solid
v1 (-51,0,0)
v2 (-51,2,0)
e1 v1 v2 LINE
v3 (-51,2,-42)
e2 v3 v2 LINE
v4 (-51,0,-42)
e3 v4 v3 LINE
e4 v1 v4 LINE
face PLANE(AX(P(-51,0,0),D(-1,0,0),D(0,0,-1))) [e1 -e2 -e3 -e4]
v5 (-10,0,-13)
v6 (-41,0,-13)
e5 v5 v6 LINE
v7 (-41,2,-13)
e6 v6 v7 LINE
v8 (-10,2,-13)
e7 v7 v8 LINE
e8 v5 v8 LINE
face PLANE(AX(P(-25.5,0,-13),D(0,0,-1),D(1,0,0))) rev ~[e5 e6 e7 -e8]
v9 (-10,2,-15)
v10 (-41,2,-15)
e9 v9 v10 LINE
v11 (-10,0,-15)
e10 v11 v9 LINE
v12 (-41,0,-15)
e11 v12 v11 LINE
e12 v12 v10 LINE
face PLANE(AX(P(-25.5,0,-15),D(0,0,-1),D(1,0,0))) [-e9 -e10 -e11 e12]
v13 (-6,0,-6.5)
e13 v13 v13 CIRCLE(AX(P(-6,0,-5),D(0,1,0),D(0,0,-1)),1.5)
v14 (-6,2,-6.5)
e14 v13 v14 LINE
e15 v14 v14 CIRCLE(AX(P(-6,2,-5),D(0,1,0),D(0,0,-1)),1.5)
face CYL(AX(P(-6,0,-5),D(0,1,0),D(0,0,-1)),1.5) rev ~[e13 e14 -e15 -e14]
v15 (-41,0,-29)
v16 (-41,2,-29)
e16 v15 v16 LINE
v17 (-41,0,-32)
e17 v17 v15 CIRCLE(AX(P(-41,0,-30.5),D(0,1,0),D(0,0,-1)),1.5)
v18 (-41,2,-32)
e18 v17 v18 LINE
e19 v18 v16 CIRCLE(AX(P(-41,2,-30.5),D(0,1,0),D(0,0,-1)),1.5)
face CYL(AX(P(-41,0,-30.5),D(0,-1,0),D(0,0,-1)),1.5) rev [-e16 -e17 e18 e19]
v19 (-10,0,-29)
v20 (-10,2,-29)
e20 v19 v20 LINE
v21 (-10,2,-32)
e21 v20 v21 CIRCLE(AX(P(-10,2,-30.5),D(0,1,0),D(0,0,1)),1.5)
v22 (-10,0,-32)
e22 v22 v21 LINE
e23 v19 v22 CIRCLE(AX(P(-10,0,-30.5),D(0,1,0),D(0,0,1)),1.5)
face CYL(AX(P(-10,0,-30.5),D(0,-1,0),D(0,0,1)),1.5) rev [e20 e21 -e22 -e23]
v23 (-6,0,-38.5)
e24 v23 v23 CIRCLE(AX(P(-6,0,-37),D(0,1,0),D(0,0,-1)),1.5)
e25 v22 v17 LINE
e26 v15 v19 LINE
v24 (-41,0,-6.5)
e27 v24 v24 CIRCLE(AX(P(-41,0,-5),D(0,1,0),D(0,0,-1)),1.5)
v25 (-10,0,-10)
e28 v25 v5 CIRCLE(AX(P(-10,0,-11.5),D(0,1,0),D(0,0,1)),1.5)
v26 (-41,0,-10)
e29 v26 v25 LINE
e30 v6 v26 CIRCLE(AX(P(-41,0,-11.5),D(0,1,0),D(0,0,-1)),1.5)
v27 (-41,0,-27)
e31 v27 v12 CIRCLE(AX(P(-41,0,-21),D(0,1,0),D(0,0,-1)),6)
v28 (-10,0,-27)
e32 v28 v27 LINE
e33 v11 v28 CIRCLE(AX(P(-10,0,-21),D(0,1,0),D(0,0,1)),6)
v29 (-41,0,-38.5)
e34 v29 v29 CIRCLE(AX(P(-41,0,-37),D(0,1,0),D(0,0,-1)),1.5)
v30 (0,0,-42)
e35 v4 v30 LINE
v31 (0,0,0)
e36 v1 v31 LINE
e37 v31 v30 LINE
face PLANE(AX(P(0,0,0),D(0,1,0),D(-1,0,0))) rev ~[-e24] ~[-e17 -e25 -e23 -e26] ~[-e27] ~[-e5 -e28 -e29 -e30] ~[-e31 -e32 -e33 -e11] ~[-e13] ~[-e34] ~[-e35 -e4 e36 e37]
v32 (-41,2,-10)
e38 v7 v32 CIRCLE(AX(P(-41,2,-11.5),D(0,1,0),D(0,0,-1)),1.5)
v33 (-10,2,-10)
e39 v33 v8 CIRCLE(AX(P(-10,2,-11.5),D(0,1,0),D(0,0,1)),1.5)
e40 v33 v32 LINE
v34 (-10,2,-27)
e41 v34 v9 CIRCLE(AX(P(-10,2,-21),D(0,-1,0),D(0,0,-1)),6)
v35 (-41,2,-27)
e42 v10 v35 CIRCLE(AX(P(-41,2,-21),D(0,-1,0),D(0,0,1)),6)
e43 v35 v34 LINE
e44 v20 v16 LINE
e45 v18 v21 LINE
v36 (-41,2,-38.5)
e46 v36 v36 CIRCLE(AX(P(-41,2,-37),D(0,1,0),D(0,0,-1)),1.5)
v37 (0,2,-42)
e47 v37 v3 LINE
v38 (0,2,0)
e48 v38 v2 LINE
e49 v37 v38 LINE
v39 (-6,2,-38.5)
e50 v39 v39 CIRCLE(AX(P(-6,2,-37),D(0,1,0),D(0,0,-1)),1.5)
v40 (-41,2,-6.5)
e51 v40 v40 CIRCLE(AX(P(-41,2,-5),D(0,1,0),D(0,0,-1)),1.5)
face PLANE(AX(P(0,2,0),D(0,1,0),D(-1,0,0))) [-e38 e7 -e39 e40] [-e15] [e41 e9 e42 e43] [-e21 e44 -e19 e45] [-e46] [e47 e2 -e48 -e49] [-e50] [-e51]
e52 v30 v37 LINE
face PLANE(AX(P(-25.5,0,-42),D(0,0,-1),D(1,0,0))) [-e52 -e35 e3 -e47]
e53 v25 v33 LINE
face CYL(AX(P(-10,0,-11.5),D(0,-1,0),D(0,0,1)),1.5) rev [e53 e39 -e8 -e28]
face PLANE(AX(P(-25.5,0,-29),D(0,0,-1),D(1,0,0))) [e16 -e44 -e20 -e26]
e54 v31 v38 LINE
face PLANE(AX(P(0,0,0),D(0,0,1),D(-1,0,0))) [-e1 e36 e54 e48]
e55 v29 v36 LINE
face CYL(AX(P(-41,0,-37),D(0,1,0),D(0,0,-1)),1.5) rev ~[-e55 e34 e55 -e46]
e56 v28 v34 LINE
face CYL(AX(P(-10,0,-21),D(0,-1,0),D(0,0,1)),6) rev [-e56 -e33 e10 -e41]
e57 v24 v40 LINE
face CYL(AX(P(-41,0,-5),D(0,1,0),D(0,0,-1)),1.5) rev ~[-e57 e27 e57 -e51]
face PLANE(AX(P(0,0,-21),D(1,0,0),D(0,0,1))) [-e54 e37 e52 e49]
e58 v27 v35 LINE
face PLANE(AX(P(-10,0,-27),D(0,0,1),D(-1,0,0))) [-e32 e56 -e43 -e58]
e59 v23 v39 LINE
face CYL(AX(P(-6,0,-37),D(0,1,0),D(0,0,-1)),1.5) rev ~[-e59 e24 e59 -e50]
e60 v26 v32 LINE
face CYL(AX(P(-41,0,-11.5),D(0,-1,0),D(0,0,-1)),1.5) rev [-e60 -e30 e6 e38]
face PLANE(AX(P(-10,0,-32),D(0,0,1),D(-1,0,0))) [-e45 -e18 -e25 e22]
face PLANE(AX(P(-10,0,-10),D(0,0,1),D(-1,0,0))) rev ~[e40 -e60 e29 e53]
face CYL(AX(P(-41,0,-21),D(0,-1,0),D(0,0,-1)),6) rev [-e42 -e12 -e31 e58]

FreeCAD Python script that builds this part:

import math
import FreeCAD as App
import Part
import Sketcher
from FreeCAD import Vector


def add_polygon(sketch, points):
    """Adds a closed chain of lines whose ends are joined by coincident constraints."""
    first, n = sketch.GeometryCount, len(points)
    for a, b in zip(points, points[1:] + points[:1]):
        sketch.addGeometry(Part.LineSegment(App.Vector(*a, 0), App.Vector(*b, 0)), False)
    for i in range(n):
        sketch.addConstraint(Sketcher.Constraint("Coincident", first + i, 2, first + (i + 1) % n, 1))

doc = App.newDocument("Part")
body = doc.addObject("PartDesign::Body", "Body")

sketch1 = doc.addObject("Sketcher::SketchObject", "Sketch")
body.addObject(sketch1)
sketch1.AttachmentSupport = (doc.XZ_Plane, [""])
sketch1.MapMode = "FlatFace"
add_polygon(sketch1, [(0, 0), (0, -42), (-51, -42), (-51, 0)])
sketch1.addGeometry(Part.LineSegment(Vector(-10, -10, 0), Vector(-41, -10, 0)), False)
sketch1.addGeometry(Part.ArcOfCircle(Part.Circle(Vector(-41, -11.5, 0), Vector(0, 0, 1), 1.5), math.radians(90), math.radians(270)), False)
sketch1.addGeometry(Part.LineSegment(Vector(-41, -13, 0), Vector(-10, -13, 0)), False)
sketch1.addGeometry(Part.ArcOfCircle(Part.Circle(Vector(-10, -11.5, 0), Vector(0, 0, 1), 1.5), math.radians(-90), math.radians(90)), False)
sketch1.addGeometry(Part.LineSegment(Vector(-10, -15, 0), Vector(-41, -15, 0)), False)
sketch1.addGeometry(Part.ArcOfCircle(Part.Circle(Vector(-41, -21, 0), Vector(0, 0, 1), 6), math.radians(90), math.radians(270)), False)
sketch1.addGeometry(Part.LineSegment(Vector(-41, -27, 0), Vector(-10, -27, 0)), False)
sketch1.addGeometry(Part.ArcOfCircle(Part.Circle(Vector(-10, -21, 0), Vector(0, 0, 1), 6), math.radians(-90), math.radians(90)), False)
sketch1.addGeometry(Part.LineSegment(Vector(-10, -29, 0), Vector(-41, -29, 0)), False)
sketch1.addGeometry(Part.ArcOfCircle(Part.Circle(Vector(-41, -30.5, 0), Vector(0, 0, 1), 1.5), math.radians(90), math.radians(270)), False)
sketch1.addGeometry(Part.LineSegment(Vector(-41, -32, 0), Vector(-10, -32, 0)), False)
sketch1.addGeometry(Part.ArcOfCircle(Part.Circle(Vector(-10, -30.5, 0), Vector(0, 0, 1), 1.5), math.radians(-90), math.radians(90)), False)
sketch1.addConstraint([
    Sketcher.Constraint("Tangent", 4, 2, 5, 1),
    Sketcher.Constraint("Tangent", 5, 2, 6, 1),
    Sketcher.Constraint("Tangent", 6, 2, 7, 1),
    Sketcher.Constraint("Tangent", 7, 2, 4, 1),
    Sketcher.Constraint("Tangent", 8, 2, 9, 1),
    Sketcher.Constraint("Tangent", 9, 2, 10, 1),
    Sketcher.Constraint("Tangent", 10, 2, 11, 1),
    Sketcher.Constraint("Tangent", 11, 2, 8, 1),
    Sketcher.Constraint("Tangent", 12, 2, 13, 1),
    Sketcher.Constraint("Tangent", 13, 2, 14, 1),
    Sketcher.Constraint("Tangent", 14, 2, 15, 1),
    Sketcher.Constraint("Tangent", 15, 2, 12, 1),
    Sketcher.Constraint("Vertical", 0),
    Sketcher.Constraint("Horizontal", 1),
    Sketcher.Constraint("Vertical", 2),
    Sketcher.Constraint("Horizontal", 3),
    Sketcher.Constraint("Horizontal", 4),
    Sketcher.Constraint("Horizontal", 6),
    Sketcher.Constraint("Horizontal", 8),
    Sketcher.Constraint("Horizontal", 10),
    Sketcher.Constraint("Horizontal", 12),
    Sketcher.Constraint("Horizontal", 14),
    Sketcher.Constraint("Coincident", 3, 2, -1, 1),
    Sketcher.Constraint("Equal", 7, 13),
    Sketcher.Constraint("Vertical", 5, 3, 9, 3),
    Sketcher.Constraint("Vertical", 7, 3, 11, 3),
    Sketcher.Constraint("Vertical", 9, 3, 13, 3),
    Sketcher.Constraint("Vertical", 11, 3, 15, 3),
    Sketcher.Constraint("Radius", 9, 6.0),
    Sketcher.Constraint("Radius", 5, 1.5),
    Sketcher.Constraint("DistanceX", 1, 2, 1, 1, 51.0),
    Sketcher.Constraint("DistanceY", 0, 2, 0, 1, 42.0),
    Sketcher.Constraint("DistanceX", 7, 3, -1, 1, 10.0),
    Sketcher.Constraint("DistanceY", 4, 2, -1, 1, 10.0),
    Sketcher.Constraint("DistanceX", 1, 2, 13, 3, 10.0),
    Sketcher.Constraint("DistanceY", 8, 2, 4, 2, 5.0),
    Sketcher.Constraint("DistanceY", 13, 2, 9, 2, 5.0),
])
pad1 = doc.addObject("PartDesign::Pad", "Pad")
body.addObject(pad1)
pad1.Profile = sketch1
pad1.Length = 2
pad1.Reversed = True

sketch2 = doc.addObject("Sketcher::SketchObject", "Sketch001")
body.addObject(sketch2)
sketch2.AttachmentSupport = (doc.XZ_Plane, [""])
sketch2.MapMode = "FlatFace"
sketch2.addGeometry([
    Part.Circle(Vector(-41, -5, 0), Vector(0, 0, 1), 1.5),
    Part.Circle(Vector(-41, -37, 0), Vector(0, 0, 1), 1.5),
    Part.Circle(Vector(-41, -21, 0), Vector(0, 0, 1), 1.5),
    Part.Circle(Vector(-10, -21, 0), Vector(0, 0, 1), 1.5),
    Part.Circle(Vector(-36, -30.5, 0), Vector(0, 0, 1), 1.5),
    Part.Circle(Vector(-41, -30.5, 0), Vector(0, 0, 1), 1.5),
    Part.Circle(Vector(-10, -30.5, 0), Vector(0, 0, 1), 1.5),
    Part.Circle(Vector(-41, -11.5, 0), Vector(0, 0, 1), 1.5),
    Part.Circle(Vector(-10, -11.5, 0), Vector(0, 0, 1), 1.5),
    Part.Circle(Vector(-6, -5, 0), Vector(0, 0, 1), 1.5),
    Part.Circle(Vector(-6, -37, 0), Vector(0, 0, 1), 1.5),
], False)
sketch2.addConstraint([
    Sketcher.Constraint("Equal", 0, 1),
    Sketcher.Constraint("Equal", 1, 2),
    Sketcher.Constraint("Equal", 2, 3),
    Sketcher.Constraint("Equal", 3, 4),
    Sketcher.Constraint("Equal", 4, 5),
    Sketcher.Constraint("Equal", 5, 6),
    Sketcher.Constraint("Equal", 6, 7),
    Sketcher.Constraint("Equal", 7, 8),
    Sketcher.Constraint("Equal", 8, 9),
    Sketcher.Constraint("Equal", 9, 10),
    Sketcher.Constraint("Horizontal", 2, 3, 3, 3),
    Sketcher.Constraint("Horizontal", 4, 3, 5, 3),
    Sketcher.Constraint("Horizontal", 5, 3, 6, 3),
    Sketcher.Constraint("Horizontal", 7, 3, 8, 3),
    Sketcher.Constraint("Horizontal", 0, 3, 9, 3),
    Sketcher.Constraint("Horizontal", 1, 3, 10, 3),
    Sketcher.Constraint("Vertical", 0, 3, 1, 3),
    Sketcher.Constraint("Vertical", 1, 3, 2, 3),
    Sketcher.Constraint("Vertical", 2, 3, 5, 3),
    Sketcher.Constraint("Vertical", 3, 3, 6, 3),
    Sketcher.Constraint("Vertical", 5, 3, 7, 3),
    Sketcher.Constraint("Vertical", 6, 3, 8, 3),
    Sketcher.Constraint("Vertical", 9, 3, 10, 3),
    Sketcher.Constraint("Diameter", 0, 3.0),
    Sketcher.Constraint("DistanceX", 0, 3, -1, 1, 41.0),
    Sketcher.Constraint("DistanceY", 0, 3, -1, 1, 5.0),
    Sketcher.Constraint("DistanceY", 1, 3, -1, 1, 37.0),
    Sketcher.Constraint("DistanceY", 2, 3, -1, 1, 21.0),
    Sketcher.Constraint("DistanceX", 3, 3, -1, 1, 10.0),
    Sketcher.Constraint("DistanceX", 9, 3, -1, 1, 6.0),
    Sketcher.Constraint("DistanceY", 5, 3, 7, 3, 19.0),
    Sketcher.Constraint("DistanceY", 4, 3, -1, 1, 30.5),
    Sketcher.Constraint("DistanceX", 4, 3, -1, 1, 35.9893),
])
doc.recompute()
hole = doc.addObject("PartDesign::Hole", "Hole")
body.addObject(hole)
hole.Profile = sketch2
hole.ThreadType = "None"
hole.Diameter = 3
hole.DepthType = "Dimension"
hole.Depth = 43.75
hole.DrillPoint = "Angled"
hole.DrillPointAngle = 118

doc.recompute()
